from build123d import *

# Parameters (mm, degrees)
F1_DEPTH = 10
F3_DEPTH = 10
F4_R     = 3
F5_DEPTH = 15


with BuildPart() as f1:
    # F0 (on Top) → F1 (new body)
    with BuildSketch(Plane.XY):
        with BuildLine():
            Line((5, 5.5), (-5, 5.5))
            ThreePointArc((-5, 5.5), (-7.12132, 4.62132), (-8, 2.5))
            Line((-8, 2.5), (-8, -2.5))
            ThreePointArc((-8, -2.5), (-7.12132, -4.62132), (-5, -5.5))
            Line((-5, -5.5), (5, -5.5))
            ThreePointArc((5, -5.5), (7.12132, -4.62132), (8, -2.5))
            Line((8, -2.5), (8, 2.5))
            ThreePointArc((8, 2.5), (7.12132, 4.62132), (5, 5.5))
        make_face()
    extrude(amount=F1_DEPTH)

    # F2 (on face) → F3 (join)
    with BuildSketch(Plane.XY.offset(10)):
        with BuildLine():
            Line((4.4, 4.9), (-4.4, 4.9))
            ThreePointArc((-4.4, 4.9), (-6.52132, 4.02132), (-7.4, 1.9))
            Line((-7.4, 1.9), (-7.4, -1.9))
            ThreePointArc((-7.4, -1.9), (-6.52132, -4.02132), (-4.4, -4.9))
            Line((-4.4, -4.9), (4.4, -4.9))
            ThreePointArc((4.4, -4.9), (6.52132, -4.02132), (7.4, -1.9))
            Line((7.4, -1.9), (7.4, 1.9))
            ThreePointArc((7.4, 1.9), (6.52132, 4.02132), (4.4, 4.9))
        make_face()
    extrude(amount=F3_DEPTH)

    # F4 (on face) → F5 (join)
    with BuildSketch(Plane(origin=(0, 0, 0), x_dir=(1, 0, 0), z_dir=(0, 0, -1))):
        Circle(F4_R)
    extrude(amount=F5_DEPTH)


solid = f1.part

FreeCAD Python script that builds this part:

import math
import FreeCAD as App
import Part
import Sketcher
Q = App.Units.Quantity

doc = App.newDocument("Part")
body = doc.addObject("PartDesign::Body", "Body")

# Sketch on XY plane
sketch1 = doc.addObject("Sketcher::SketchObject", "Sketch")
body.addObject(sketch1)
sketch1.AttachmentSupport = (doc.XY_Plane, [""])
sketch1.MapMode = "FlatFace"
sketch1.addGeometry(Part.LineSegment(App.Vector(5, 5.5, 0), App.Vector(-5, 5.5, 0)), False)
sketch1.addGeometry(Part.ArcOfCircle(Part.Circle(App.Vector(-5, 2.5, 0), App.Vector(0, 0, 1), 3), math.radians(90), math.radians(180)), False)
sketch1.addGeometry(Part.LineSegment(App.Vector(-8, 2.5, 0), App.Vector(-8, -2.5, 0)), False)
sketch1.addGeometry(Part.ArcOfCircle(Part.Circle(App.Vector(-5, -2.5, 0), App.Vector(0, 0, 1), 3), math.radians(-180), math.radians(-90)), False)
sketch1.addGeometry(Part.LineSegment(App.Vector(-5, -5.5, 0), App.Vector(5, -5.5, 0)), False)
sketch1.addGeometry(Part.ArcOfCircle(Part.Circle(App.Vector(5, -2.5, 0), App.Vector(0, 0, 1), 3), math.radians(-90), math.radians(0)), False)
sketch1.addGeometry(Part.LineSegment(App.Vector(8, -2.5, 0), App.Vector(8, 2.5, 0)), False)
sketch1.addGeometry(Part.ArcOfCircle(Part.Circle(App.Vector(5, 2.5, 0), App.Vector(0, 0, 1), 3), math.radians(0), math.radians(90)), False)
sketch1.addConstraint(Sketcher.Constraint("Tangent", 0, 2, 1, 1))
sketch1.addConstraint(Sketcher.Constraint("Tangent", 1, 2, 2, 1))
sketch1.addConstraint(Sketcher.Constraint("Tangent", 2, 2, 3, 1))
sketch1.addConstraint(Sketcher.Constraint("Tangent", 3, 2, 4, 1))
sketch1.addConstraint(Sketcher.Constraint("Tangent", 4, 2, 5, 1))
sketch1.addConstraint(Sketcher.Constraint("Tangent", 5, 2, 6, 1))
sketch1.addConstraint(Sketcher.Constraint("Tangent", 6, 2, 7, 1))
sketch1.addConstraint(Sketcher.Constraint("Tangent", 7, 2, 0, 1))
sketch1.addConstraint(Sketcher.Constraint("Horizontal", 0))
sketch1.addConstraint(Sketcher.Constraint("Vertical", 2))
sketch1.addConstraint(Sketcher.Constraint("Horizontal", 4))
sketch1.addConstraint(Sketcher.Constraint("Vertical", 6))
sketch1.addConstraint(Sketcher.Constraint("Equal", 1, 3))
sketch1.addConstraint(Sketcher.Constraint("Equal", 3, 5))
sketch1.addConstraint(Sketcher.Constraint("Equal", 5, 7))
sketch1.addConstraint(Sketcher.Constraint("Symmetric", 1, 3, 5, 3, -1, 1))
sketch1.addConstraint(Sketcher.Constraint("Radius", 1, Q("3.000001 mm")))
sketch1.addConstraint(Sketcher.Constraint("DistanceX", 0, 2, 0, 1, Q("10 mm")))
sketch1.addConstraint(Sketcher.Constraint("DistanceY", 2, 2, 2, 1, Q("5 mm")))
pad1 = doc.addObject("PartDesign::Pad", "Pad")
body.addObject(pad1)
pad1.Profile = sketch1
pad1.Length = 10

# Sketch on XY plane
sketch2 = doc.addObject("Sketcher::SketchObject", "Sketch001")
body.addObject(sketch2)
sketch2.AttachmentSupport = (doc.XY_Plane, [""])
sketch2.MapMode = "FlatFace"
sketch2.AttachmentOffset = App.Placement(App.Vector(0, 0, 10), App.Rotation())
sketch2.addGeometry(Part.LineSegment(App.Vector(4.4, 4.9, 0), App.Vector(-4.4, 4.9, 0)), False)
sketch2.addGeometry(Part.ArcOfCircle(Part.Circle(App.Vector(-4.4, 1.9, 0), App.Vector(0, 0, 1), 3), math.radians(90), math.radians(180)), False)
sketch2.addGeometry(Part.LineSegment(App.Vector(-7.4, 1.9, 0), App.Vector(-7.4, -1.9, 0)), False)
sketch2.addGeometry(Part.ArcOfCircle(Part.Circle(App.Vector(-4.4, -1.9, 0), App.Vector(0, 0, 1), 3), math.radians(-180), math.radians(-90)), False)
sketch2.addGeometry(Part.LineSegment(App.Vector(-4.4, -4.9, 0), App.Vector(4.4, -4.9, 0)), False)
sketch2.addGeometry(Part.ArcOfCircle(Part.Circle(App.Vector(4.4, -1.9, 0), App.Vector(0, 0, 1), 3), math.radians(-90), math.radians(0)), False)
sketch2.addGeometry(Part.LineSegment(App.Vector(7.4, -1.9, 0), App.Vector(7.4, 1.9, 0)), False)
sketch2.addGeometry(Part.ArcOfCircle(Part.Circle(App.Vector(4.4, 1.9, 0), App.Vector(0, 0, 1), 3), math.radians(0), math.radians(90)), False)
sketch2.addConstraint(Sketcher.Constraint("Tangent", 0, 2, 1, 1))
sketch2.addConstraint(Sketcher.Constraint("Tangent", 1, 2, 2, 1))
sketch2.addConstraint(Sketcher.Constraint("Tangent", 2, 2, 3, 1))
sketch2.addConstraint(Sketcher.Constraint("Tangent", 3, 2, 4, 1))
sketch2.addConstraint(Sketcher.Constraint("Tangent", 4, 2, 5, 1))
sketch2.addConstraint(Sketcher.Constraint("Tangent", 5, 2, 6, 1))
sketch2.addConstraint(Sketcher.Constraint("Tangent", 6, 2, 7, 1))
sketch2.addConstraint(Sketcher.Constraint("Tangent", 7, 2, 0, 1))
sketch2.addConstraint(Sketcher.Constraint("Horizontal", 0))
sketch2.addConstraint(Sketcher.Constraint("Vertical", 2))
sketch2.addConstraint(Sketcher.Constraint("Horizontal", 4))
sketch2.addConstraint(Sketcher.Constraint("Vertical", 6))
sketch2.addConstraint(Sketcher.Constraint("Equal", 1, 3))
sketch2.addConstraint(Sketcher.Constraint("Equal", 3, 5))
sketch2.addConstraint(Sketcher.Constraint("Equal", 5, 7))
sketch2.addConstraint(Sketcher.Constraint("Symmetric", 1, 3, 5, 3, -1, 1))
sketch2.addConstraint(Sketcher.Constraint("Radius", 1, Q("3.000001 mm")))
sketch2.addConstraint(Sketcher.Constraint("DistanceX", 0, 2, 0, 1, Q("8.8 mm")))
sketch2.addConstraint(Sketcher.Constraint("DistanceY", 2, 2, 2, 1, Q("3.8 mm")))
pad2 = doc.addObject("PartDesign::Pad", "Pad001")
body.addObject(pad2)
pad2.Profile = sketch2
pad2.Length = 10

# Sketch on XY plane
sketch3 = doc.addObject("Sketcher::SketchObject", "Sketch002")
body.addObject(sketch3)
sketch3.AttachmentSupport = (doc.XY_Plane, [""])
sketch3.MapMode = "FlatFace"
sketch3.addGeometry(Part.Circle(App.Vector(0, 0, 0), App.Vector(0, 0, 1), 3), False)
sketch3.addConstraint(Sketcher.Constraint("Coincident", 0, 3, -1, 1))
sketch3.addConstraint(Sketcher.Constraint("Diameter", 0, Q("6 mm")))
pad3 = doc.addObject("PartDesign::Pad", "Pad002")
body.addObject(pad3)
pad3.Profile = sketch3
pad3.Length = 15
pad3.Reversed = True

doc.recompute()
